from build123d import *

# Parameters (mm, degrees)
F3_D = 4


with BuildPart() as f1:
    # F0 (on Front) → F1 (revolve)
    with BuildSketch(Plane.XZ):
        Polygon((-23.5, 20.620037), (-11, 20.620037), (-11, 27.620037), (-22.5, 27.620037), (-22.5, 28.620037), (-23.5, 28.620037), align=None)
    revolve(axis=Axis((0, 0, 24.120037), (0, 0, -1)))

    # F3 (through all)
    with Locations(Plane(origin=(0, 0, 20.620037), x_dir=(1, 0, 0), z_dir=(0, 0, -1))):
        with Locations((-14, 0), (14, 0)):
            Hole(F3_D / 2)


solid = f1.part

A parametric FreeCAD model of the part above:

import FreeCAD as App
import Part
import Sketcher


def add_polygon(sketch, points):
    """Adds a closed chain of lines whose ends are joined by coincident constraints."""
    first, n = sketch.GeometryCount, len(points)
    for a, b in zip(points, points[1:] + points[:1]):
        sketch.addGeometry(Part.LineSegment(App.Vector(*a, 0), App.Vector(*b, 0)), False)
    for i in range(n):
        sketch.addConstraint(Sketcher.Constraint("Coincident", first + i, 2, first + (i + 1) % n, 1))

doc = App.newDocument("Part")
body = doc.addObject("PartDesign::Body", "Body")

sketch1 = body.newObject("Sketcher::SketchObject", "Sketch")
sketch1.AttachmentSupport = (doc.getObject("XZ_Plane"), [""])
sketch1.MapMode = "FlatFace"
add_polygon(sketch1, [(-23.5, 20.6), (-11, 20.6), (-11, 27.6), (-22.5, 27.6), (-22.5, 28.6), (-23.5, 28.6)])
sketch1.addConstraint(Sketcher.Constraint("Horizontal", 0))
sketch1.addConstraint(Sketcher.Constraint("Vertical", 1))
sketch1.addConstraint(Sketcher.Constraint("Horizontal", 2))
sketch1.addConstraint(Sketcher.Constraint("Vertical", 3))
sketch1.addConstraint(Sketcher.Constraint("Horizontal", 4))
sketch1.addConstraint(Sketcher.Constraint("Vertical", 5))
sketch1.addConstraint(Sketcher.Constraint("Equal", 4, 3))
sketch1.addConstraint(Sketcher.Constraint("DistanceX", 4, 2, 4, 1, 1.0))
sketch1.addConstraint(Sketcher.Constraint("DistanceY", 1, 1, 1, 2, 7.0))
sketch1.addConstraint(Sketcher.Constraint("DistanceX", 0, 1, 0, 2, 12.5))
sketch1.addConstraint(Sketcher.Constraint("DistanceX", 0, 2, -1, 1, 11.0))
sketch1.addConstraint(Sketcher.Constraint("DistanceY", -1, 1, 0, 2, 20.620037))
revolution = body.newObject("PartDesign::Revolution", "Revolution")
revolution.Profile = sketch1
revolution.ReferenceAxis = (sketch1, ["V_Axis"])
revolution.Angle = 360

sketch2 = body.newObject("Sketcher::SketchObject", "Sketch001")
sketch2.AttachmentSupport = (doc.getObject("XY_Plane"), [""])
sketch2.MapMode = "FlatFace"
sketch2.AttachmentOffset = App.Placement(App.Vector(0, 0, 20.620037), App.Rotation())
sketch2.addGeometry(Part.Circle(App.Vector(-14, 0, 0), App.Vector(0, 0, 1), 2), False)
sketch2.addGeometry(Part.Circle(App.Vector(14, 0, 0), App.Vector(0, 0, 1), 2), False)
sketch2.addConstraint(Sketcher.Constraint("Equal", 0, 1))
sketch2.addConstraint(Sketcher.Constraint("Symmetric", 0, 3, 1, 3, -1, 1))
sketch2.addConstraint(Sketcher.Constraint("PointOnObject", 0, 3, -1))
sketch2.addConstraint(Sketcher.Constraint("Diameter", 0, 4.0))
sketch2.addConstraint(Sketcher.Constraint("DistanceX", 0, 3, -1, 1, 14.0))
doc.recompute()
hole = body.newObject("PartDesign::Hole", "Hole")
hole.Profile = sketch2
hole.ThreadType = "None"
hole.Diameter = 4
hole.DepthType = "ThroughAll"
hole.Reversed = True

doc.recompute()
